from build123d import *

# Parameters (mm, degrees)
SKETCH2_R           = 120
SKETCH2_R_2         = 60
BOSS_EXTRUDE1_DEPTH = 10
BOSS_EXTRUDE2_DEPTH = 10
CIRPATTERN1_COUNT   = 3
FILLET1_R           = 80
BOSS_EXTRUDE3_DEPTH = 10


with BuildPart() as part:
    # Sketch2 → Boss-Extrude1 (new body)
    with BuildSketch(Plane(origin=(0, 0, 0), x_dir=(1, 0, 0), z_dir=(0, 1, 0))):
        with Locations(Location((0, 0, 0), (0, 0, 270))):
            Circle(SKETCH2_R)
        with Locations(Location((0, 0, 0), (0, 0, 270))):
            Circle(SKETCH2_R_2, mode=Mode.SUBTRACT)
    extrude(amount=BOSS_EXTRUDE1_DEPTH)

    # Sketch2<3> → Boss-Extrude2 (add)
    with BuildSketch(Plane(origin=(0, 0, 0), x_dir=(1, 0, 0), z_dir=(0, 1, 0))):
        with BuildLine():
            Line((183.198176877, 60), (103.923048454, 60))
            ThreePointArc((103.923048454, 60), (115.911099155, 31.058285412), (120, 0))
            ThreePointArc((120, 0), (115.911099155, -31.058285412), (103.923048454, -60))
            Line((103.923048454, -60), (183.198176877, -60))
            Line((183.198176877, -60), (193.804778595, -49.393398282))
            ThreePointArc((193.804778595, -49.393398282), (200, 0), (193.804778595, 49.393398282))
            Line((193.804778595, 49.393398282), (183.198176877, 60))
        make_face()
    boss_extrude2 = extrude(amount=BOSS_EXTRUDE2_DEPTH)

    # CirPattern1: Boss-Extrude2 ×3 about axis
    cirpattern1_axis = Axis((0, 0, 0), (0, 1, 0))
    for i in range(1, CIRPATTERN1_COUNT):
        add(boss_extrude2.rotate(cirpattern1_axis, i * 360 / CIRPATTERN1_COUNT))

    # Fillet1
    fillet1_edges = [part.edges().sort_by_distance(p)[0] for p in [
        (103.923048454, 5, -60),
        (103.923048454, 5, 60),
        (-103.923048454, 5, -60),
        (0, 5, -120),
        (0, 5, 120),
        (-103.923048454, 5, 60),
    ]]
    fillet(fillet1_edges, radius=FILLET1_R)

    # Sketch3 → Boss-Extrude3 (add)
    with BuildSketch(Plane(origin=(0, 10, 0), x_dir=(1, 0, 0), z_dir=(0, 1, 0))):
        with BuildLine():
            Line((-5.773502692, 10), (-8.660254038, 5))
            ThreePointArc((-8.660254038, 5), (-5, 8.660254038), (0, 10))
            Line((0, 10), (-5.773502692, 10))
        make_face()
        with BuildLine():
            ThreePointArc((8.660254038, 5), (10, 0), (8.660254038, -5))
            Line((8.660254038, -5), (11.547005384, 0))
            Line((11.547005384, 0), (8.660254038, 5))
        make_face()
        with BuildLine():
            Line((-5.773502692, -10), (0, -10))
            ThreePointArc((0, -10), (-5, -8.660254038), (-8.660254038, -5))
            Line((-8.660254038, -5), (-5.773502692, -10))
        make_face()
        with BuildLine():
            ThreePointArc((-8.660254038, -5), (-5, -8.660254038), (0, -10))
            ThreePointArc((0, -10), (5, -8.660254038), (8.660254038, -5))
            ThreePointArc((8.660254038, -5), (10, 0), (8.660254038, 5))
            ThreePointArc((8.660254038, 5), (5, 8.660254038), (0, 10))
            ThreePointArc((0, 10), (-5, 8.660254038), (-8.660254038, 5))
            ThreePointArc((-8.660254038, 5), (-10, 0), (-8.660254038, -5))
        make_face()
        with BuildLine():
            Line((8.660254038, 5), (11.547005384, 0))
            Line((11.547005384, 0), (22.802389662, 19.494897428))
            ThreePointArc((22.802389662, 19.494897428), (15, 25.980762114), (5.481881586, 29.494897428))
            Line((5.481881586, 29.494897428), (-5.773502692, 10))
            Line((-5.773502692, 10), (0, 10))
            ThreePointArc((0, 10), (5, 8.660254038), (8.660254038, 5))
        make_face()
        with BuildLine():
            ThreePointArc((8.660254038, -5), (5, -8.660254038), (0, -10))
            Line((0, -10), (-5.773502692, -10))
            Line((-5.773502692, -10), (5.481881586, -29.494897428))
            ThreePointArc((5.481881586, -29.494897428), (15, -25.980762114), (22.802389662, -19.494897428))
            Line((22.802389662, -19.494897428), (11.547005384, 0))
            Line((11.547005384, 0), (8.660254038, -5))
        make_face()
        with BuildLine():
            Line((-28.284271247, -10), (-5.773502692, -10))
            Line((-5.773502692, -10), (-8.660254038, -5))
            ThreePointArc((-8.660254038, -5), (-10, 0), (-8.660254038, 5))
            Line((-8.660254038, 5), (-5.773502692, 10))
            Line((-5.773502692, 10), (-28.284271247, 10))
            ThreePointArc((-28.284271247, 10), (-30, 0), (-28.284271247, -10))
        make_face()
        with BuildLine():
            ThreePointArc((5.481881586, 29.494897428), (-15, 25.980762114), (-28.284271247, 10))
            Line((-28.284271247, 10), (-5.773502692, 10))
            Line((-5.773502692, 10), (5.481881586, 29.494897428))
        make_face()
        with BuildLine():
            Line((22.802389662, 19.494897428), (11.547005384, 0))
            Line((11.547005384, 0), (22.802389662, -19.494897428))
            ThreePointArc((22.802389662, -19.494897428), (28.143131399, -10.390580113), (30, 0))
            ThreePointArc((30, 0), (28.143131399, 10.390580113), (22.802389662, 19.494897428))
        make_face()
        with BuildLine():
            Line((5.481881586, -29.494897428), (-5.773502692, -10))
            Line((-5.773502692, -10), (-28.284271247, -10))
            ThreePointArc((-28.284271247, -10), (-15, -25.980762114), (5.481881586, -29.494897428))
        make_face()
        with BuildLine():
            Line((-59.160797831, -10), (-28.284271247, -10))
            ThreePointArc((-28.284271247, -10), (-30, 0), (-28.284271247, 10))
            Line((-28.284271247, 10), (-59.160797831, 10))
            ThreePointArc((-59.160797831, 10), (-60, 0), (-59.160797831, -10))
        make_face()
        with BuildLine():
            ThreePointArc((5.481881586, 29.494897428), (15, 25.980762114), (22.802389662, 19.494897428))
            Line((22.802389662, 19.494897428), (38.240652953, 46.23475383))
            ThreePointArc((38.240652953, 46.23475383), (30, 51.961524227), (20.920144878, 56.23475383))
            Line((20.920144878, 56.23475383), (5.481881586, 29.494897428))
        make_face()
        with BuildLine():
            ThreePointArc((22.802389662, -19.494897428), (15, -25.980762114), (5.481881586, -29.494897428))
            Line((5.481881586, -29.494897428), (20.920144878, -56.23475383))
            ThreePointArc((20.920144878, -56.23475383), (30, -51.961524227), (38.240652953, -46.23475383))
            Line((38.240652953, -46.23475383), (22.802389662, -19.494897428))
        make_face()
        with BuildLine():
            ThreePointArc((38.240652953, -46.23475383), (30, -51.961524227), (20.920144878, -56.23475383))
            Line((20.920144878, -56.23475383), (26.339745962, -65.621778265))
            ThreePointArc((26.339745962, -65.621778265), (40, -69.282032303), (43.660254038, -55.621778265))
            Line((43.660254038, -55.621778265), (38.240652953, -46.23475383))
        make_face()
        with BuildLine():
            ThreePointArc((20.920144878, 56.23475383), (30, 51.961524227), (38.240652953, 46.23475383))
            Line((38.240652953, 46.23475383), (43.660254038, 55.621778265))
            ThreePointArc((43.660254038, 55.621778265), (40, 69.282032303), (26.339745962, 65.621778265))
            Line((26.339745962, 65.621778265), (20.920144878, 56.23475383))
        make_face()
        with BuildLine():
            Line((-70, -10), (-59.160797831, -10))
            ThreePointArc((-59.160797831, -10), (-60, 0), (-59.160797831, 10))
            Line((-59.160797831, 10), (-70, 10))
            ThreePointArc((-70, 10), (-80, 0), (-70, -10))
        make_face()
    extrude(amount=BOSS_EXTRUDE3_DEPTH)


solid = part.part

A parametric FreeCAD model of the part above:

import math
import FreeCAD as App
import Part
import Sketcher

V = App.Vector
Q = App.Units.Quantity


def edges_at(feature, points):
    """Names of the edges that pass closest to the given points."""
    edges = feature.Shape.Edges
    near = lambda p: min(range(len(edges)), key=lambda i: edges[i].distToShape(Part.Vertex(*p))[0])
    return sorted({f"Edge{near(p) + 1}" for p in points})

doc = App.newDocument("Part")
body = doc.addObject("PartDesign::Body", "Body")

sketch1 = body.newObject("Sketcher::SketchObject", "Sketch")
sketch1.AttachmentSupport = (doc.getObject("XZ_Plane"), [""])
sketch1.MapMode = "FlatFace"
sketch1.addGeometry([
    Part.Circle(V(0, 0, 0), V(0, 0, 1), 120),
    Part.Circle(V(0, 0, 0), V(0, 0, 1), 60),
], False)
sketch1.addConstraint([
    Sketcher.Constraint("Coincident", 0, 3, -1, 1),
    Sketcher.Constraint("Coincident", 1, 3, -1, 1),
    Sketcher.Constraint("Diameter", 0, Q("240 mm")),
    Sketcher.Constraint("Diameter", 1, Q("120 mm")),
])
pad1 = body.newObject("PartDesign::Pad", "Pad")
pad1.Profile = sketch1
pad1.Length = 10
pad1.Reversed = True

sketch2 = body.newObject("Sketcher::SketchObject", "Sketch001")
sketch2.AttachmentSupport = (doc.getObject("XZ_Plane"), [""])
sketch2.MapMode = "FlatFace"
sketch2.addGeometry([
    Part.LineSegment(V(183, -60, 0), V(104, -60, 0)),
    Part.ArcOfCircle(Part.Circle(V(0, 0, 0), V(0, 0, 1), 120), math.radians(-30), math.radians(0)),
    Part.ArcOfCircle(Part.Circle(V(0, 0, 0), V(0, 0, 1), 120), math.radians(0), math.radians(30)),
    Part.LineSegment(V(104, 60, 0), V(183, 60, 0)),
    Part.LineSegment(V(183, 60, 0), V(194, 49, 0)),
    Part.ArcOfCircle(Part.Circle(V(0, 0, 0), V(0, 0, 1), 200), math.radians(-14), math.radians(14)),
    Part.LineSegment(V(194, -49, 0), V(183, -60, 0)),
], False)
sketch2.addConstraint([
    Sketcher.Constraint("Coincident", 0, 2, 1, 1),
    Sketcher.Constraint("Tangent", 1, 2, 2, 1),
    Sketcher.Constraint("Coincident", 2, 2, 3, 1),
    Sketcher.Constraint("Coincident", 3, 2, 4, 1),
    Sketcher.Constraint("Coincident", 4, 2, 5, 2),
    Sketcher.Constraint("Coincident", 5, 1, 6, 1),
    Sketcher.Constraint("Coincident", 6, 2, 0, 1),
    Sketcher.Constraint("Horizontal", 0),
    Sketcher.Constraint("Horizontal", 3),
    Sketcher.Constraint("Coincident", 1, 3, -1, 1),
    Sketcher.Constraint("Coincident", 5, 3, -1, 1),
    Sketcher.Constraint("Equal", 1, 2),
    Sketcher.Constraint("Symmetric", 3, 2, 6, 2, -1),
    Sketcher.Constraint("PointOnObject", 1, 2, -1),
    Sketcher.Constraint("Perpendicular", 4, 6),
    Sketcher.Constraint("Vertical", 4, 2, 5, 1),
    Sketcher.Constraint("Radius", 1, Q("120 mm")),
    Sketcher.Constraint("Radius", 5, Q("200 mm")),
    Sketcher.Constraint("Distance", 4, Q("15 mm")),
    Sketcher.Constraint("DistanceY", 0, 2, -1, 1, Q("60 mm")),
])
pad2 = body.newObject("PartDesign::Pad", "Pad001")
pad2.Profile = sketch2
pad2.Length = 10
pad2.Reversed = True
doc.recompute()

polarpattern = body.newObject("PartDesign::PolarPattern", "PolarPattern")
polarpattern.Originals = [pad2]
polarpattern.Axis = (doc.getObject("Y_Axis"), [""])
polarpattern.Angle = 360
polarpattern.Occurrences = 3
body.Tip = polarpattern
doc.recompute()

fillet = body.newObject("PartDesign::Fillet", "Fillet")
fillet.Base = (polarpattern, edges_at(polarpattern, [
    (103.923, 5, -60),
    (103.923, 5, 60),
    (-103.923, 5, -60),
    (0, 5, -120),
    (0, 5, 120),
    (-103.923, 5, 60),
]))
fillet.Radius = 80

sketch3 = body.newObject("Sketcher::SketchObject", "Sketch002")
sketch3.AttachmentSupport = (doc.getObject("XZ_Plane"), [""])
sketch3.MapMode = "FlatFace"
sketch3.AttachmentOffset = App.Placement(V(0, 0, -10), App.Rotation())
sketch3.addGeometry([
    Part.ArcOfCircle(Part.Circle(V(0, 0, 0), V(0, 0, 1), 30), math.radians(0), math.radians(41)),
    Part.ArcOfCircle(Part.Circle(V(0, 0, 0), V(0, 0, 1), 30), math.radians(-41), math.radians(0)),
    Part.LineSegment(V(23, -19, 0), V(38, -46, 0)),
    Part.LineSegment(V(38, -46, 0), V(44, -56, 0)),
    Part.ArcOfCircle(Part.Circle(V(35, -61, 0), V(0, 0, 1), 10), math.radians(-150), math.radians(30)),
    Part.LineSegment(V(26, -66, 0), V(21, -56, 0)),
    Part.LineSegment(V(21, -56, 0), V(5, -29, 0)),
    Part.ArcOfCircle(Part.Circle(V(0, 0, 0), V(0, 0, 1), 30), math.radians(-161), math.radians(-79)),
    Part.LineSegment(V(-28, -10, 0), V(-70, -10, 0)),
    Part.ArcOfCircle(Part.Circle(V(-70, 0, 0), V(0, 0, 1), 10), math.radians(90), math.radians(270)),
    Part.LineSegment(V(-70, 10, 0), V(-28, 10, 0)),
    Part.ArcOfCircle(Part.Circle(V(0, 0, 0), V(0, 0, 1), 30), math.radians(79), math.radians(161)),
    Part.LineSegment(V(5, 29, 0), V(21, 56, 0)),
    Part.LineSegment(V(21, 56, 0), V(26, 66, 0)),
    Part.ArcOfCircle(Part.Circle(V(35, 61, 0), V(0, 0, 1), 10), math.radians(-30), math.radians(150)),
    Part.LineSegment(V(44, 56, 0), V(38, 46, 0)),
    Part.LineSegment(V(38, 46, 0), V(23, 19, 0)),
], False)
sketch3.addConstraint([
    Sketcher.Constraint("Tangent", 0, 1, 1, 2),
    Sketcher.Constraint("Coincident", 1, 1, 2, 1),
    Sketcher.Constraint("Coincident", 2, 2, 3, 1),
    Sketcher.Constraint("Tangent", 3, 2, 4, 2),
    Sketcher.Constraint("Tangent", 4, 1, 5, 1),
    Sketcher.Constraint("Coincident", 5, 2, 6, 1),
    Sketcher.Constraint("Coincident", 6, 2, 7, 2),
    Sketcher.Constraint("Coincident", 7, 1, 8, 1),
    Sketcher.Constraint("Tangent", 8, 2, 9, 2),
    Sketcher.Constraint("Tangent", 9, 1, 10, 1),
    Sketcher.Constraint("Coincident", 10, 2, 11, 2),
    Sketcher.Constraint("Coincident", 11, 1, 12, 1),
    Sketcher.Constraint("Coincident", 12, 2, 13, 1),
    Sketcher.Constraint("Tangent", 13, 2, 14, 2),
    Sketcher.Constraint("Tangent", 14, 1, 15, 1),
    Sketcher.Constraint("Coincident", 15, 2, 16, 1),
    Sketcher.Constraint("Coincident", 16, 2, 0, 2),
    Sketcher.Constraint("Horizontal", 8),
    Sketcher.Constraint("Horizontal", 10),
    Sketcher.Constraint("Coincident", 0, 3, -1, 1),
    Sketcher.Constraint("Coincident", 7, 3, -1, 1),
    Sketcher.Constraint("Coincident", 11, 3, -1, 1),
    Sketcher.Constraint("Equal", 0, 1),
    Sketcher.Constraint("Equal", 1, 7),
    Sketcher.Constraint("Equal", 4, 9),
    Sketcher.Constraint("Equal", 7, 11),
    Sketcher.Constraint("Equal", 9, 14),
    Sketcher.Constraint("Symmetric", 4, 3, 14, 3, -1),
    Sketcher.Constraint("Symmetric", 5, 2, 12, 2, -1),
    Sketcher.Constraint("Symmetric", 2, 2, 15, 2, -1),
    Sketcher.Constraint("PointOnObject", 9, 3, -1),
    Sketcher.Constraint("PointOnObject", 0, 1, -1),
    Sketcher.Constraint("Parallel", 2, 3),
    Sketcher.Constraint("Parallel", 3, 5),
    Sketcher.Constraint("Parallel", 5, 6),
    Sketcher.Constraint("Parallel", 12, 13),
    Sketcher.Constraint("Parallel", 15, 16),
    Sketcher.Constraint("Equal", 3, 5),
    Sketcher.Constraint("Equal", 2, 6),
    Sketcher.Constraint("Radius", 0, Q("30 mm")),
    Sketcher.Constraint("Radius", 4, Q("10 mm")),
    Sketcher.Constraint("Angle", 2, Q("-60 deg")),
    Sketcher.Constraint("DistanceX", -1, 1, 4, 3, Q("35 mm")),
    Sketcher.Constraint("DistanceX", 9, 3, -1, 1, Q("70 mm")),
    Sketcher.Constraint("DistanceX", 2, 2, 3, 2, Q("5.419601 mm")),
])
pad3 = body.newObject("PartDesign::Pad", "Pad002")
pad3.Profile = sketch3
pad3.Length = 10
pad3.Reversed = True

doc.recompute()
